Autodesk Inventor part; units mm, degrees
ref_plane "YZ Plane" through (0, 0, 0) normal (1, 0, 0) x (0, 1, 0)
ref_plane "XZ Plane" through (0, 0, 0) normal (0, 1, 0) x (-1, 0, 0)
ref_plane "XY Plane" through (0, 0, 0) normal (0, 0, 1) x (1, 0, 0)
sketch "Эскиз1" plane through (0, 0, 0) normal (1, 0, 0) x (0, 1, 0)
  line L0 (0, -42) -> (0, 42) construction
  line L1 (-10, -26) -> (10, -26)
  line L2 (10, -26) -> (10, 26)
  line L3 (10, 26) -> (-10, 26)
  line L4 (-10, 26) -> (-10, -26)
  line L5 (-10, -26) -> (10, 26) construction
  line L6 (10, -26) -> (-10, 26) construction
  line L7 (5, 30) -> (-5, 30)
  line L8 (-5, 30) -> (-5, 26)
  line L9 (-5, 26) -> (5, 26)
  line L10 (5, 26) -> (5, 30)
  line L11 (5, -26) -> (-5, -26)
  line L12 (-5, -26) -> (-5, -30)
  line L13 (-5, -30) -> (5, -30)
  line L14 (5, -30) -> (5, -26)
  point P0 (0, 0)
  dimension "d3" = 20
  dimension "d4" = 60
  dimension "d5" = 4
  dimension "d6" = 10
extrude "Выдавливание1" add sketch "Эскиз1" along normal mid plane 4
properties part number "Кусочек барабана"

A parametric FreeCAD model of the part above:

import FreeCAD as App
import Part
import Sketcher
Q = App.Units.Quantity


def add_polygon(sketch, points):
    """Adds a closed chain of lines whose ends are joined by coincident constraints."""
    first, n = sketch.GeometryCount, len(points)
    for a, b in zip(points, points[1:] + points[:1]):
        sketch.addGeometry(Part.LineSegment(App.Vector(*a, 0), App.Vector(*b, 0)), False)
    for i in range(n):
        sketch.addConstraint(Sketcher.Constraint("Coincident", first + i, 2, first + (i + 1) % n, 1))

doc = App.newDocument("Part")
body = doc.addObject("PartDesign::Body", "Body")

# Sketch on YZ plane
sketch1 = body.newObject("Sketcher::SketchObject", "Sketch")
sketch1.AttachmentSupport = (doc.getObject("YZ_Plane"), [""])
sketch1.MapMode = "FlatFace"
add_polygon(sketch1, [(-10, 26), (-10, -26), (-5, -26), (-5, -30), (5, -30), (5, -26), (10, -26), (10, 26), (5, 26), (5, 30), (-5, 30), (-5, 26)])  # lines 0-11
sketch1.addConstraint(Sketcher.Constraint("Vertical", 0))
sketch1.addConstraint(Sketcher.Constraint("Horizontal", 1))
sketch1.addConstraint(Sketcher.Constraint("Vertical", 2))
sketch1.addConstraint(Sketcher.Constraint("Horizontal", 3))
sketch1.addConstraint(Sketcher.Constraint("Vertical", 4))
sketch1.addConstraint(Sketcher.Constraint("Horizontal", 5))
sketch1.addConstraint(Sketcher.Constraint("Vertical", 6))
sketch1.addConstraint(Sketcher.Constraint("Horizontal", 7))
sketch1.addConstraint(Sketcher.Constraint("Vertical", 8))
sketch1.addConstraint(Sketcher.Constraint("Horizontal", 9))
sketch1.addConstraint(Sketcher.Constraint("Vertical", 10))
sketch1.addConstraint(Sketcher.Constraint("Horizontal", 11))
sketch1.addConstraint(Sketcher.Constraint("Symmetric", 0, 2, 6, 2, -1, 1))
sketch1.addConstraint(Sketcher.Constraint("Symmetric", 2, 2, 8, 2, -1, 1))
sketch1.addConstraint(Sketcher.Constraint("Symmetric", 4, 2, 10, 2, -1, 1))
sketch1.addConstraint(Sketcher.Constraint("Symmetric", 1, 2, 4, 2, -2))
sketch1.addConstraint(Sketcher.Constraint("DistanceX", 3, 1, 3, 2, Q("10 mm")))
sketch1.addConstraint(Sketcher.Constraint("DistanceY", 2, 2, 2, 1, Q("4 mm")))
sketch1.addConstraint(Sketcher.Constraint("DistanceX", 0, 2, -1, 1, Q("10 mm")))
sketch1.addConstraint(Sketcher.Constraint("DistanceY", 0, 2, 0, 1, Q("52 mm")))
pad1 = body.newObject("PartDesign::Pad", "Pad")
pad1.Profile = sketch1
pad1.Length = 4
pad1.Midplane = True

doc.recompute()
